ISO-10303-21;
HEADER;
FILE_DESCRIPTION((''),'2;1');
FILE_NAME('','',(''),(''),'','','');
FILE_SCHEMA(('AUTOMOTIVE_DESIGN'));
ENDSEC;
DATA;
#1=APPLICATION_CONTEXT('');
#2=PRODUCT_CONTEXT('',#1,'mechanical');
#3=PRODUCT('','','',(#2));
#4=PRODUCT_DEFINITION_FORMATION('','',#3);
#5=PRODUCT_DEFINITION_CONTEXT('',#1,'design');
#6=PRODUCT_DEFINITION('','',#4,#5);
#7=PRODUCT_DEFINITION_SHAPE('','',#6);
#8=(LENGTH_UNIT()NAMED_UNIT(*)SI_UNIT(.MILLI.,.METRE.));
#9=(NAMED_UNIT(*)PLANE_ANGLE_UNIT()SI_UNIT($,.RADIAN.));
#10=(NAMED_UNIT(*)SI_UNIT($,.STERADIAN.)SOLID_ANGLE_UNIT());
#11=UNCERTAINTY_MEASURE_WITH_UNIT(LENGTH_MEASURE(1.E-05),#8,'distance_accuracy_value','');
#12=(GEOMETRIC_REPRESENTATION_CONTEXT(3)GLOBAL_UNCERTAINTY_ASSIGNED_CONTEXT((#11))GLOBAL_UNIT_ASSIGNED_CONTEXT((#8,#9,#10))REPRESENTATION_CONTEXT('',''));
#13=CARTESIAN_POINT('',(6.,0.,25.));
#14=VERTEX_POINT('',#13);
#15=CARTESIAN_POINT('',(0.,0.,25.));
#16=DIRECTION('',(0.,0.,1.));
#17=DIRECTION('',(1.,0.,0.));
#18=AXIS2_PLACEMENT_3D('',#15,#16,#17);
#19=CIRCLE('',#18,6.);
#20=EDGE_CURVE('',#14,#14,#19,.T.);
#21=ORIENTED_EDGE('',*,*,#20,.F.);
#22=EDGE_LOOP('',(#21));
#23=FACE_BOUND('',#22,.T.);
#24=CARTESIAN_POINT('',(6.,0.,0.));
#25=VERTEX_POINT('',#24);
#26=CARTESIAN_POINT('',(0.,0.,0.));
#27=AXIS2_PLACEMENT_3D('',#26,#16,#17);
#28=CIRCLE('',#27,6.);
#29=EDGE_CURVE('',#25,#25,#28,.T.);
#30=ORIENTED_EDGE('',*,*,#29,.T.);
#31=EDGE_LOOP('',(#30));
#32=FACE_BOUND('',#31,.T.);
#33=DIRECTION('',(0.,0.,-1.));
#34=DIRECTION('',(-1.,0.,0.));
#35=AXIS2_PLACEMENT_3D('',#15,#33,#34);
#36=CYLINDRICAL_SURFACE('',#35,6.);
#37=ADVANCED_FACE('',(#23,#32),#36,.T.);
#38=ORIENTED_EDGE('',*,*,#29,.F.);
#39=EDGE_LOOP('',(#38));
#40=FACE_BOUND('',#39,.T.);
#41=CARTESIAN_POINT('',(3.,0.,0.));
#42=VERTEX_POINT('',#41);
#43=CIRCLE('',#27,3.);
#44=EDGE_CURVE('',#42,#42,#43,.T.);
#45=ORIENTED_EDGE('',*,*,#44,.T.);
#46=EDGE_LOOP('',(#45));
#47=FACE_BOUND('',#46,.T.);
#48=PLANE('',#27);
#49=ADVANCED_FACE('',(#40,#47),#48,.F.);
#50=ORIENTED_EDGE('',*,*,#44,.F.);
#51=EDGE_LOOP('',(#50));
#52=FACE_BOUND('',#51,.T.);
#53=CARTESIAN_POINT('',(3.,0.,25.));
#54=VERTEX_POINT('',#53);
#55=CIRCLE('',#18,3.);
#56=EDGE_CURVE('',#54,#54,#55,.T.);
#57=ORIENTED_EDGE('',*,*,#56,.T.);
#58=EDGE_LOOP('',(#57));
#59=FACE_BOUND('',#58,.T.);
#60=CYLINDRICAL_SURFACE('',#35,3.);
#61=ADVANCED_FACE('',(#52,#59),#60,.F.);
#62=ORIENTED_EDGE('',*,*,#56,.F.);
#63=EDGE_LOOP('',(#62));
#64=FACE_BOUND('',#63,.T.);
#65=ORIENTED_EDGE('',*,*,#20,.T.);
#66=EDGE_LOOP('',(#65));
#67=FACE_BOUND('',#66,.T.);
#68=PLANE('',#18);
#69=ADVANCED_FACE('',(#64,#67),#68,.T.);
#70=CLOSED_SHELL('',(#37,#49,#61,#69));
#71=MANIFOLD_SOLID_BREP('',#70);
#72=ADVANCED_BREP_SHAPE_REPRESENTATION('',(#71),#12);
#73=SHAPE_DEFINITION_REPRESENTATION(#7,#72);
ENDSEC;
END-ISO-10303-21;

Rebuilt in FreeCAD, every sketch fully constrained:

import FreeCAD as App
import Part
import Sketcher

V = App.Vector
Q = App.Units.Quantity

doc = App.newDocument("Part")
body = doc.addObject("PartDesign::Body", "Body")

# Sketch on XY plane
sketch1 = doc.addObject("Sketcher::SketchObject", "Sketch")
body.addObject(sketch1)
sketch1.AttachmentSupport = (doc.XY_Plane, [""])
sketch1.MapMode = "FlatFace"
sketch1.addGeometry([
    Part.Circle(V(0, 0, 0), V(0, 0, 1), 6),
    Part.Circle(V(0, 0, 0), V(0, 0, 1), 3),
], False)
sketch1.addConstraint([
    Sketcher.Constraint("Coincident", 0, 3, -1, 1),
    Sketcher.Constraint("Coincident", 1, 3, -1, 1),
    Sketcher.Constraint("Diameter", 0, Q("12 mm")),
    Sketcher.Constraint("Diameter", 1, Q("6 mm")),
])
pad1 = doc.addObject("PartDesign::Pad", "Pad")
body.addObject(pad1)
pad1.Profile = sketch1
pad1.Length = 25

doc.recompute()
